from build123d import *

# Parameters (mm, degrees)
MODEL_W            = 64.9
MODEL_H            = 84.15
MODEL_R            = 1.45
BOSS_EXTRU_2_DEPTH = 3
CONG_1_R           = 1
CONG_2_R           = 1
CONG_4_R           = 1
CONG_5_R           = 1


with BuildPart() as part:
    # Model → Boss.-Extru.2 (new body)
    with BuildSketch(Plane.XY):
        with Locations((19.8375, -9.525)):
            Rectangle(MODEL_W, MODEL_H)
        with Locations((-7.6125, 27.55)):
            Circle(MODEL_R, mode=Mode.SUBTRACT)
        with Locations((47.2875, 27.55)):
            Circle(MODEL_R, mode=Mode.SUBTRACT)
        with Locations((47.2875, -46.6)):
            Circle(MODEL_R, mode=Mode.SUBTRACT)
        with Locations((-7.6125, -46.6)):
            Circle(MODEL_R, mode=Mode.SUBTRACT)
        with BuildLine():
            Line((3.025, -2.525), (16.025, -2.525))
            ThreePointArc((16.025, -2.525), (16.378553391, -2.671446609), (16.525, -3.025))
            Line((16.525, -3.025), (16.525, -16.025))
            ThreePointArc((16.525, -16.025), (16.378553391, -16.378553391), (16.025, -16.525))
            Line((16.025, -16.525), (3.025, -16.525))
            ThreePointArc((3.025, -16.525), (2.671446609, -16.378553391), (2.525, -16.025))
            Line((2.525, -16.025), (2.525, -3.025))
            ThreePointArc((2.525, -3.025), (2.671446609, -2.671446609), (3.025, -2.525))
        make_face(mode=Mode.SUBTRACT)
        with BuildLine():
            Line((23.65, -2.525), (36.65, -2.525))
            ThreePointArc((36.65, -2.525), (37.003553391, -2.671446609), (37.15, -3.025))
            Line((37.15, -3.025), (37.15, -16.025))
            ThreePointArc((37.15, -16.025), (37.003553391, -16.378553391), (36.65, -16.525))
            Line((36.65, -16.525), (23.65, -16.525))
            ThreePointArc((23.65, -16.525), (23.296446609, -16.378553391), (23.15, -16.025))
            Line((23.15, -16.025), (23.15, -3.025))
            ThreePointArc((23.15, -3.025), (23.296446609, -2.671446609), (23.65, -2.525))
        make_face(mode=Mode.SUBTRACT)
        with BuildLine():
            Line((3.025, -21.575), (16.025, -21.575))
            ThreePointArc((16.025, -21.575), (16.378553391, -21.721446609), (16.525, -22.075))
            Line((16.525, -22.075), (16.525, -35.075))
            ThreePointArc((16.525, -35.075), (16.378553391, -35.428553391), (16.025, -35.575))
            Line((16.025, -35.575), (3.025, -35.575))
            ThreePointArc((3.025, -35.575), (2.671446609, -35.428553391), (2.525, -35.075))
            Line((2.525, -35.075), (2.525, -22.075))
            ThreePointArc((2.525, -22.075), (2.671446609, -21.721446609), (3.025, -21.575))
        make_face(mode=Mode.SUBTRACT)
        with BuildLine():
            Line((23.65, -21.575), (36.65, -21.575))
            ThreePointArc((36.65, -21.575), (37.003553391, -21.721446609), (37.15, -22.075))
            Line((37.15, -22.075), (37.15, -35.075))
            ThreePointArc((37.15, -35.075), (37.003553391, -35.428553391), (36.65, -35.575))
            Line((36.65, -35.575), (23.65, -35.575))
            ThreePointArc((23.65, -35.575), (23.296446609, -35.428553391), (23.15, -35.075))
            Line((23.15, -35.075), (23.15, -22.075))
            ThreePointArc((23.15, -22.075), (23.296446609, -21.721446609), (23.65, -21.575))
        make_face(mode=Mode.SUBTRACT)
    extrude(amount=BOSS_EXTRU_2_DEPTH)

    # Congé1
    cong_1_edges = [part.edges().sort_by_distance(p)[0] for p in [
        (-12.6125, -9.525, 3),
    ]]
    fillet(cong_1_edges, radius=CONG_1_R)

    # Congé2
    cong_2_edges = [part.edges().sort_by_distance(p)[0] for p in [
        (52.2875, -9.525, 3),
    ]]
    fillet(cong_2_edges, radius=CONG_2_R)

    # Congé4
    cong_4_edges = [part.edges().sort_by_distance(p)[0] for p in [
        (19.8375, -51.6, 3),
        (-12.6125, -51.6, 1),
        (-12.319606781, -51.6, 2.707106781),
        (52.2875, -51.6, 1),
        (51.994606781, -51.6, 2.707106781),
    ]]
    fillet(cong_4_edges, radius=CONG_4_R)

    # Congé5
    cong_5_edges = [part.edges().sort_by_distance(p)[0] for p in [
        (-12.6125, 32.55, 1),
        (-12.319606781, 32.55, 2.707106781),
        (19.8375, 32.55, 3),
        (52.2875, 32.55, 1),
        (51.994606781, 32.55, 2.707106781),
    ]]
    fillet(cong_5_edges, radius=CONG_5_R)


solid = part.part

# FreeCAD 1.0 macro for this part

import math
import FreeCAD as App
import Part
import Sketcher

V = App.Vector


def edges_at(feature, points):
    """Names of the edges that pass closest to the given points."""
    edges = feature.Shape.Edges
    near = lambda p: min(range(len(edges)), key=lambda i: edges[i].distToShape(Part.Vertex(*p))[0])
    return sorted({f"Edge{near(p) + 1}" for p in points})

doc = App.newDocument("Part")
body = doc.addObject("PartDesign::Body", "Body")

# Sketch on XY plane
sketch1 = body.newObject("Sketcher::SketchObject", "Sketch")
sketch1.AttachmentSupport = (doc.getObject("XY_Plane"), [""])
sketch1.MapMode = "FlatFace"
sketch1.addGeometry(Part.LineSegment(V(-12.61, 32.55, 0), V(-12.61, -51.6, 0)), False)
sketch1.addGeometry(Part.LineSegment(V(-12.61, -51.6, 0), V(52.29, -51.6, 0)), False)
sketch1.addGeometry(Part.LineSegment(V(52.29, -51.6, 0), V(52.29, 32.55, 0)), False)
sketch1.addGeometry(Part.LineSegment(V(52.29, 32.55, 0), V(-12.61, 32.55, 0)), False)
sketch1.addGeometry(Part.Circle(V(-7.61, -46.6, 0), V(0, 0, 1), 1.45), False)
sketch1.addGeometry(Part.ArcOfCircle(Part.Circle(V(3.02, -22.07, 0), V(0, 0, 1), 0.5), math.radians(90), math.radians(180)), False)
sketch1.addGeometry(Part.LineSegment(V(3.02, -21.57, 0), V(16.02, -21.57, 0)), False)
sketch1.addGeometry(Part.ArcOfCircle(Part.Circle(V(16.03, -22.07, 0), V(0, 0, 1), 0.5), math.radians(0), math.radians(90)), False)
sketch1.addGeometry(Part.LineSegment(V(16.52, -22.07, 0), V(16.52, -35.08, 0)), False)
sketch1.addGeometry(Part.ArcOfCircle(Part.Circle(V(16.03, -35.08, 0), V(0, 0, 1), 0.5), math.radians(-90), math.radians(0)), False)
sketch1.addGeometry(Part.LineSegment(V(16.02, -35.58, 0), V(3.02, -35.58, 0)), False)
sketch1.addGeometry(Part.ArcOfCircle(Part.Circle(V(3.02, -35.08, 0), V(0, 0, 1), 0.5), math.radians(180), math.radians(270)), False)
sketch1.addGeometry(Part.LineSegment(V(2.52, -35.08, 0), V(2.52, -22.07, 0)), False)
sketch1.addGeometry(Part.Circle(V(47.29, -46.6, 0), V(0, 0, 1), 1.45), False)
sketch1.addGeometry(Part.ArcOfCircle(Part.Circle(V(23.65, -22.07, 0), V(0, 0, 1), 0.5), math.radians(90), math.radians(180)), False)
sketch1.addGeometry(Part.LineSegment(V(23.65, -21.57, 0), V(36.65, -21.57, 0)), False)
sketch1.addGeometry(Part.ArcOfCircle(Part.Circle(V(36.65, -22.07, 0), V(0, 0, 1), 0.5), math.radians(0), math.radians(90)), False)
sketch1.addGeometry(Part.LineSegment(V(37.15, -22.07, 0), V(37.15, -35.08, 0)), False)
sketch1.addGeometry(Part.ArcOfCircle(Part.Circle(V(36.65, -35.08, 0), V(0, 0, 1), 0.5), math.radians(-90), math.radians(0)), False)
sketch1.addGeometry(Part.LineSegment(V(36.65, -35.58, 0), V(23.65, -35.58, 0)), False)
sketch1.addGeometry(Part.ArcOfCircle(Part.Circle(V(23.65, -35.08, 0), V(0, 0, 1), 0.5), math.radians(180), math.radians(270)), False)
sketch1.addGeometry(Part.LineSegment(V(23.15, -35.08, 0), V(23.15, -22.07, 0)), False)
sketch1.addGeometry(Part.ArcOfCircle(Part.Circle(V(3.02, -3.02, 0), V(0, 0, 1), 0.5), math.radians(90), math.radians(180)), False)
sketch1.addGeometry(Part.LineSegment(V(3.02, -2.52, 0), V(16.02, -2.52, 0)), False)
sketch1.addGeometry(Part.ArcOfCircle(Part.Circle(V(16.03, -3.02, 0), V(0, 0, 1), 0.5), math.radians(0), math.radians(90)), False)
sketch1.addGeometry(Part.LineSegment(V(16.52, -3.02, 0), V(16.52, -16.02, 0)), False)
sketch1.addGeometry(Part.ArcOfCircle(Part.Circle(V(16.03, -16.03, 0), V(0, 0, 1), 0.5), math.radians(-90), math.radians(0)), False)
sketch1.addGeometry(Part.LineSegment(V(16.02, -16.52, 0), V(3.02, -16.52, 0)), False)
sketch1.addGeometry(Part.ArcOfCircle(Part.Circle(V(3.02, -16.03, 0), V(0, 0, 1), 0.5), math.radians(180), math.radians(270)), False)
sketch1.addGeometry(Part.LineSegment(V(2.52, -16.02, 0), V(2.52, -3.02, 0)), False)
sketch1.addGeometry(Part.Circle(V(-7.61, 27.55, 0), V(0, 0, 1), 1.45), False)
sketch1.addGeometry(Part.ArcOfCircle(Part.Circle(V(23.65, -3.02, 0), V(0, 0, 1), 0.5), math.radians(90), math.radians(180)), False)
sketch1.addGeometry(Part.LineSegment(V(23.65, -2.52, 0), V(36.65, -2.52, 0)), False)
sketch1.addGeometry(Part.ArcOfCircle(Part.Circle(V(36.65, -3.02, 0), V(0, 0, 1), 0.5), math.radians(0), math.radians(90)), False)
sketch1.addGeometry(Part.LineSegment(V(37.15, -3.02, 0), V(37.15, -16.02, 0)), False)
sketch1.addGeometry(Part.ArcOfCircle(Part.Circle(V(36.65, -16.03, 0), V(0, 0, 1), 0.5), math.radians(-90), math.radians(0)), False)
sketch1.addGeometry(Part.LineSegment(V(36.65, -16.52, 0), V(23.65, -16.52, 0)), False)
sketch1.addGeometry(Part.ArcOfCircle(Part.Circle(V(23.65, -16.03, 0), V(0, 0, 1), 0.5), math.radians(180), math.radians(270)), False)
sketch1.addGeometry(Part.LineSegment(V(23.15, -16.02, 0), V(23.15, -3.02, 0)), False)
sketch1.addGeometry(Part.Circle(V(47.29, 27.55, 0), V(0, 0, 1), 1.45), False)
sketch1.addConstraint(Sketcher.Constraint("Coincident", 0, 2, 1, 1))
sketch1.addConstraint(Sketcher.Constraint("Coincident", 1, 2, 2, 1))
sketch1.addConstraint(Sketcher.Constraint("Coincident", 2, 2, 3, 1))
sketch1.addConstraint(Sketcher.Constraint("Coincident", 3, 2, 0, 1))
sketch1.addConstraint(Sketcher.Constraint("Tangent", 5, 1, 6, 1))
sketch1.addConstraint(Sketcher.Constraint("Tangent", 6, 2, 7, 2))
sketch1.addConstraint(Sketcher.Constraint("Tangent", 7, 1, 8, 1))
sketch1.addConstraint(Sketcher.Constraint("Tangent", 8, 2, 9, 2))
sketch1.addConstraint(Sketcher.Constraint("Tangent", 9, 1, 10, 1))
sketch1.addConstraint(Sketcher.Constraint("Tangent", 10, 2, 11, 2))
sketch1.addConstraint(Sketcher.Constraint("Tangent", 11, 1, 12, 1))
sketch1.addConstraint(Sketcher.Constraint("Tangent", 12, 2, 5, 2))
sketch1.addConstraint(Sketcher.Constraint("Tangent", 14, 1, 15, 1))
sketch1.addConstraint(Sketcher.Constraint("Tangent", 15, 2, 16, 2))
sketch1.addConstraint(Sketcher.Constraint("Tangent", 16, 1, 17, 1))
sketch1.addConstraint(Sketcher.Constraint("Tangent", 17, 2, 18, 2))
sketch1.addConstraint(Sketcher.Constraint("Tangent", 18, 1, 19, 1))
sketch1.addConstraint(Sketcher.Constraint("Tangent", 19, 2, 20, 2))
sketch1.addConstraint(Sketcher.Constraint("Tangent", 20, 1, 21, 1))
sketch1.addConstraint(Sketcher.Constraint("Tangent", 21, 2, 14, 2))
sketch1.addConstraint(Sketcher.Constraint("Tangent", 22, 1, 23, 1))
sketch1.addConstraint(Sketcher.Constraint("Tangent", 23, 2, 24, 2))
sketch1.addConstraint(Sketcher.Constraint("Tangent", 24, 1, 25, 1))
sketch1.addConstraint(Sketcher.Constraint("Tangent", 25, 2, 26, 2))
sketch1.addConstraint(Sketcher.Constraint("Tangent", 26, 1, 27, 1))
sketch1.addConstraint(Sketcher.Constraint("Tangent", 27, 2, 28, 2))
sketch1.addConstraint(Sketcher.Constraint("Tangent", 28, 1, 29, 1))
sketch1.addConstraint(Sketcher.Constraint("Tangent", 29, 2, 22, 2))
sketch1.addConstraint(Sketcher.Constraint("Tangent", 31, 1, 32, 1))
sketch1.addConstraint(Sketcher.Constraint("Tangent", 32, 2, 33, 2))
sketch1.addConstraint(Sketcher.Constraint("Tangent", 33, 1, 34, 1))
sketch1.addConstraint(Sketcher.Constraint("Tangent", 34, 2, 35, 2))
sketch1.addConstraint(Sketcher.Constraint("Tangent", 35, 1, 36, 1))
sketch1.addConstraint(Sketcher.Constraint("Tangent", 36, 2, 37, 2))
sketch1.addConstraint(Sketcher.Constraint("Tangent", 37, 1, 38, 1))
sketch1.addConstraint(Sketcher.Constraint("Tangent", 38, 2, 31, 2))
sketch1.addConstraint(Sketcher.Constraint("Vertical", 0))
sketch1.addConstraint(Sketcher.Constraint("Horizontal", 1))
sketch1.addConstraint(Sketcher.Constraint("Vertical", 2))
sketch1.addConstraint(Sketcher.Constraint("Horizontal", 3))
sketch1.addConstraint(Sketcher.Constraint("Horizontal", 6))
sketch1.addConstraint(Sketcher.Constraint("Vertical", 8))
sketch1.addConstraint(Sketcher.Constraint("Horizontal", 10))
sketch1.addConstraint(Sketcher.Constraint("Vertical", 12))
sketch1.addConstraint(Sketcher.Constraint("Horizontal", 15))
sketch1.addConstraint(Sketcher.Constraint("Vertical", 17))
sketch1.addConstraint(Sketcher.Constraint("Horizontal", 19))
sketch1.addConstraint(Sketcher.Constraint("Vertical", 21))
sketch1.addConstraint(Sketcher.Constraint("Horizontal", 23))
sketch1.addConstraint(Sketcher.Constraint("Vertical", 25))
sketch1.addConstraint(Sketcher.Constraint("Horizontal", 27))
sketch1.addConstraint(Sketcher.Constraint("Vertical", 29))
sketch1.addConstraint(Sketcher.Constraint("Horizontal", 32))
sketch1.addConstraint(Sketcher.Constraint("Vertical", 34))
sketch1.addConstraint(Sketcher.Constraint("Horizontal", 36))
sketch1.addConstraint(Sketcher.Constraint("Vertical", 38))
sketch1.addConstraint(Sketcher.Constraint("Equal", 5, 7))
sketch1.addConstraint(Sketcher.Constraint("Equal", 7, 9))
sketch1.addConstraint(Sketcher.Constraint("Equal", 9, 11))
sketch1.addConstraint(Sketcher.Constraint("Equal", 4, 13))
sketch1.addConstraint(Sketcher.Constraint("Equal", 11, 14))
sketch1.addConstraint(Sketcher.Constraint("Equal", 14, 16))
sketch1.addConstraint(Sketcher.Constraint("Equal", 16, 18))
sketch1.addConstraint(Sketcher.Constraint("Equal", 18, 20))
sketch1.addConstraint(Sketcher.Constraint("Equal", 20, 22))
sketch1.addConstraint(Sketcher.Constraint("Equal", 22, 24))
sketch1.addConstraint(Sketcher.Constraint("Equal", 24, 26))
sketch1.addConstraint(Sketcher.Constraint("Equal", 26, 28))
sketch1.addConstraint(Sketcher.Constraint("Equal", 13, 30))
sketch1.addConstraint(Sketcher.Constraint("Equal", 28, 31))
sketch1.addConstraint(Sketcher.Constraint("Equal", 31, 33))
sketch1.addConstraint(Sketcher.Constraint("Equal", 33, 35))
sketch1.addConstraint(Sketcher.Constraint("Equal", 35, 37))
sketch1.addConstraint(Sketcher.Constraint("Equal", 30, 39))
sketch1.addConstraint(Sketcher.Constraint("Horizontal", 4, 3, 13, 3))
sketch1.addConstraint(Sketcher.Constraint("Horizontal", 7, 3, 14, 3))
sketch1.addConstraint(Sketcher.Constraint("Horizontal", 11, 3, 18, 3))
sketch1.addConstraint(Sketcher.Constraint("Horizontal", 24, 3, 31, 3))
sketch1.addConstraint(Sketcher.Constraint("Horizontal", 28, 3, 35, 3))
sketch1.addConstraint(Sketcher.Constraint("Horizontal", 30, 3, 39, 3))
sketch1.addConstraint(Sketcher.Constraint("Vertical", 11, 3, 22, 3))
sketch1.addConstraint(Sketcher.Constraint("Vertical", 9, 3, 24, 3))
sketch1.addConstraint(Sketcher.Constraint("Vertical", 4, 3, 30, 3))
sketch1.addConstraint(Sketcher.Constraint("Vertical", 20, 3, 31, 3))
sketch1.addConstraint(Sketcher.Constraint("Vertical", 18, 3, 33, 3))
sketch1.addConstraint(Sketcher.Constraint("Vertical", 13, 3, 39, 3))
sketch1.addConstraint(Sketcher.Constraint("Equal", 10, 15))
sketch1.addConstraint(Sketcher.Constraint("Equal", 36, 8))
sketch1.addConstraint(Sketcher.Constraint("Equal", 21, 25))
sketch1.addConstraint(Sketcher.Constraint("Diameter", 4, 2.9))
sketch1.addConstraint(Sketcher.Constraint("Radius", 5, 0.5))
sketch1.addConstraint(Sketcher.Constraint("DistanceX", 6, 1, 6, 2, 13.0))
sketch1.addConstraint(Sketcher.Constraint("DistanceX", 1, 1, 1, 2, 64.9))
sketch1.addConstraint(Sketcher.Constraint("DistanceX", 0, 2, 4, 3, 5.0))
sketch1.addConstraint(Sketcher.Constraint("DistanceY", 0, 2, 4, 3, 5.0))
sketch1.addConstraint(Sketcher.Constraint("DistanceX", 13, 3, 1, 2, 5.0))
sketch1.addConstraint(Sketcher.Constraint("DistanceY", 39, 3, 2, 2, 5.0))
sketch1.addConstraint(Sketcher.Constraint("DistanceY", 0, 2, 0, 1, 84.15))
sketch1.addConstraint(Sketcher.Constraint("DistanceY", 4, 3, -1, 1, 46.6))
sketch1.addConstraint(Sketcher.Constraint("DistanceX", -1, 1, 14, 3, 23.65))
sketch1.addConstraint(Sketcher.Constraint("DistanceY", 5, 3, 22, 3, 19.05))
sketch1.addConstraint(Sketcher.Constraint("DistanceX", -1, 1, 5, 3, 3.025))
sketch1.addConstraint(Sketcher.Constraint("DistanceY", 5, 3, -1, 1, 22.075))
sketch1.addConstraint(Sketcher.Constraint("DistanceX", 4, 3, -1, 1, 7.6125))
pad1 = body.newObject("PartDesign::Pad", "Pad")
pad1.Profile = sketch1
pad1.Length = 3
doc.recompute()

fillet = body.newObject("PartDesign::Fillet", "Fillet")
fillet.Base = (pad1, edges_at(pad1, [(-12.613, -9.525, 3)]))
fillet.Radius = 1
doc.recompute()

fillet2 = body.newObject("PartDesign::Fillet", "Fillet001")
fillet2.Base = (fillet, edges_at(fillet, [(52.288, -9.525, 3)]))
fillet2.Radius = 1
doc.recompute()

fillet3 = body.newObject("PartDesign::Fillet", "Fillet002")
fillet3.Base = (fillet2, edges_at(fillet2, [
    (19.837, -51.6, 3),
    (-12.613, -51.6, 1),
    (-12.32, -51.6, 2.707),
    (52.288, -51.6, 1),
    (51.995, -51.6, 2.707),
]))
fillet3.Radius = 1
doc.recompute()

fillet4 = body.newObject("PartDesign::Fillet", "Fillet003")
fillet4.Base = (fillet3, edges_at(fillet3, [
    (-12.613, 32.55, 1),
    (-12.32, 32.55, 2.707),
    (19.837, 32.55, 3),
    (52.288, 32.55, 1),
    (51.995, 32.55, 2.707),
]))
fillet4.Radius = 1

doc.recompute()
